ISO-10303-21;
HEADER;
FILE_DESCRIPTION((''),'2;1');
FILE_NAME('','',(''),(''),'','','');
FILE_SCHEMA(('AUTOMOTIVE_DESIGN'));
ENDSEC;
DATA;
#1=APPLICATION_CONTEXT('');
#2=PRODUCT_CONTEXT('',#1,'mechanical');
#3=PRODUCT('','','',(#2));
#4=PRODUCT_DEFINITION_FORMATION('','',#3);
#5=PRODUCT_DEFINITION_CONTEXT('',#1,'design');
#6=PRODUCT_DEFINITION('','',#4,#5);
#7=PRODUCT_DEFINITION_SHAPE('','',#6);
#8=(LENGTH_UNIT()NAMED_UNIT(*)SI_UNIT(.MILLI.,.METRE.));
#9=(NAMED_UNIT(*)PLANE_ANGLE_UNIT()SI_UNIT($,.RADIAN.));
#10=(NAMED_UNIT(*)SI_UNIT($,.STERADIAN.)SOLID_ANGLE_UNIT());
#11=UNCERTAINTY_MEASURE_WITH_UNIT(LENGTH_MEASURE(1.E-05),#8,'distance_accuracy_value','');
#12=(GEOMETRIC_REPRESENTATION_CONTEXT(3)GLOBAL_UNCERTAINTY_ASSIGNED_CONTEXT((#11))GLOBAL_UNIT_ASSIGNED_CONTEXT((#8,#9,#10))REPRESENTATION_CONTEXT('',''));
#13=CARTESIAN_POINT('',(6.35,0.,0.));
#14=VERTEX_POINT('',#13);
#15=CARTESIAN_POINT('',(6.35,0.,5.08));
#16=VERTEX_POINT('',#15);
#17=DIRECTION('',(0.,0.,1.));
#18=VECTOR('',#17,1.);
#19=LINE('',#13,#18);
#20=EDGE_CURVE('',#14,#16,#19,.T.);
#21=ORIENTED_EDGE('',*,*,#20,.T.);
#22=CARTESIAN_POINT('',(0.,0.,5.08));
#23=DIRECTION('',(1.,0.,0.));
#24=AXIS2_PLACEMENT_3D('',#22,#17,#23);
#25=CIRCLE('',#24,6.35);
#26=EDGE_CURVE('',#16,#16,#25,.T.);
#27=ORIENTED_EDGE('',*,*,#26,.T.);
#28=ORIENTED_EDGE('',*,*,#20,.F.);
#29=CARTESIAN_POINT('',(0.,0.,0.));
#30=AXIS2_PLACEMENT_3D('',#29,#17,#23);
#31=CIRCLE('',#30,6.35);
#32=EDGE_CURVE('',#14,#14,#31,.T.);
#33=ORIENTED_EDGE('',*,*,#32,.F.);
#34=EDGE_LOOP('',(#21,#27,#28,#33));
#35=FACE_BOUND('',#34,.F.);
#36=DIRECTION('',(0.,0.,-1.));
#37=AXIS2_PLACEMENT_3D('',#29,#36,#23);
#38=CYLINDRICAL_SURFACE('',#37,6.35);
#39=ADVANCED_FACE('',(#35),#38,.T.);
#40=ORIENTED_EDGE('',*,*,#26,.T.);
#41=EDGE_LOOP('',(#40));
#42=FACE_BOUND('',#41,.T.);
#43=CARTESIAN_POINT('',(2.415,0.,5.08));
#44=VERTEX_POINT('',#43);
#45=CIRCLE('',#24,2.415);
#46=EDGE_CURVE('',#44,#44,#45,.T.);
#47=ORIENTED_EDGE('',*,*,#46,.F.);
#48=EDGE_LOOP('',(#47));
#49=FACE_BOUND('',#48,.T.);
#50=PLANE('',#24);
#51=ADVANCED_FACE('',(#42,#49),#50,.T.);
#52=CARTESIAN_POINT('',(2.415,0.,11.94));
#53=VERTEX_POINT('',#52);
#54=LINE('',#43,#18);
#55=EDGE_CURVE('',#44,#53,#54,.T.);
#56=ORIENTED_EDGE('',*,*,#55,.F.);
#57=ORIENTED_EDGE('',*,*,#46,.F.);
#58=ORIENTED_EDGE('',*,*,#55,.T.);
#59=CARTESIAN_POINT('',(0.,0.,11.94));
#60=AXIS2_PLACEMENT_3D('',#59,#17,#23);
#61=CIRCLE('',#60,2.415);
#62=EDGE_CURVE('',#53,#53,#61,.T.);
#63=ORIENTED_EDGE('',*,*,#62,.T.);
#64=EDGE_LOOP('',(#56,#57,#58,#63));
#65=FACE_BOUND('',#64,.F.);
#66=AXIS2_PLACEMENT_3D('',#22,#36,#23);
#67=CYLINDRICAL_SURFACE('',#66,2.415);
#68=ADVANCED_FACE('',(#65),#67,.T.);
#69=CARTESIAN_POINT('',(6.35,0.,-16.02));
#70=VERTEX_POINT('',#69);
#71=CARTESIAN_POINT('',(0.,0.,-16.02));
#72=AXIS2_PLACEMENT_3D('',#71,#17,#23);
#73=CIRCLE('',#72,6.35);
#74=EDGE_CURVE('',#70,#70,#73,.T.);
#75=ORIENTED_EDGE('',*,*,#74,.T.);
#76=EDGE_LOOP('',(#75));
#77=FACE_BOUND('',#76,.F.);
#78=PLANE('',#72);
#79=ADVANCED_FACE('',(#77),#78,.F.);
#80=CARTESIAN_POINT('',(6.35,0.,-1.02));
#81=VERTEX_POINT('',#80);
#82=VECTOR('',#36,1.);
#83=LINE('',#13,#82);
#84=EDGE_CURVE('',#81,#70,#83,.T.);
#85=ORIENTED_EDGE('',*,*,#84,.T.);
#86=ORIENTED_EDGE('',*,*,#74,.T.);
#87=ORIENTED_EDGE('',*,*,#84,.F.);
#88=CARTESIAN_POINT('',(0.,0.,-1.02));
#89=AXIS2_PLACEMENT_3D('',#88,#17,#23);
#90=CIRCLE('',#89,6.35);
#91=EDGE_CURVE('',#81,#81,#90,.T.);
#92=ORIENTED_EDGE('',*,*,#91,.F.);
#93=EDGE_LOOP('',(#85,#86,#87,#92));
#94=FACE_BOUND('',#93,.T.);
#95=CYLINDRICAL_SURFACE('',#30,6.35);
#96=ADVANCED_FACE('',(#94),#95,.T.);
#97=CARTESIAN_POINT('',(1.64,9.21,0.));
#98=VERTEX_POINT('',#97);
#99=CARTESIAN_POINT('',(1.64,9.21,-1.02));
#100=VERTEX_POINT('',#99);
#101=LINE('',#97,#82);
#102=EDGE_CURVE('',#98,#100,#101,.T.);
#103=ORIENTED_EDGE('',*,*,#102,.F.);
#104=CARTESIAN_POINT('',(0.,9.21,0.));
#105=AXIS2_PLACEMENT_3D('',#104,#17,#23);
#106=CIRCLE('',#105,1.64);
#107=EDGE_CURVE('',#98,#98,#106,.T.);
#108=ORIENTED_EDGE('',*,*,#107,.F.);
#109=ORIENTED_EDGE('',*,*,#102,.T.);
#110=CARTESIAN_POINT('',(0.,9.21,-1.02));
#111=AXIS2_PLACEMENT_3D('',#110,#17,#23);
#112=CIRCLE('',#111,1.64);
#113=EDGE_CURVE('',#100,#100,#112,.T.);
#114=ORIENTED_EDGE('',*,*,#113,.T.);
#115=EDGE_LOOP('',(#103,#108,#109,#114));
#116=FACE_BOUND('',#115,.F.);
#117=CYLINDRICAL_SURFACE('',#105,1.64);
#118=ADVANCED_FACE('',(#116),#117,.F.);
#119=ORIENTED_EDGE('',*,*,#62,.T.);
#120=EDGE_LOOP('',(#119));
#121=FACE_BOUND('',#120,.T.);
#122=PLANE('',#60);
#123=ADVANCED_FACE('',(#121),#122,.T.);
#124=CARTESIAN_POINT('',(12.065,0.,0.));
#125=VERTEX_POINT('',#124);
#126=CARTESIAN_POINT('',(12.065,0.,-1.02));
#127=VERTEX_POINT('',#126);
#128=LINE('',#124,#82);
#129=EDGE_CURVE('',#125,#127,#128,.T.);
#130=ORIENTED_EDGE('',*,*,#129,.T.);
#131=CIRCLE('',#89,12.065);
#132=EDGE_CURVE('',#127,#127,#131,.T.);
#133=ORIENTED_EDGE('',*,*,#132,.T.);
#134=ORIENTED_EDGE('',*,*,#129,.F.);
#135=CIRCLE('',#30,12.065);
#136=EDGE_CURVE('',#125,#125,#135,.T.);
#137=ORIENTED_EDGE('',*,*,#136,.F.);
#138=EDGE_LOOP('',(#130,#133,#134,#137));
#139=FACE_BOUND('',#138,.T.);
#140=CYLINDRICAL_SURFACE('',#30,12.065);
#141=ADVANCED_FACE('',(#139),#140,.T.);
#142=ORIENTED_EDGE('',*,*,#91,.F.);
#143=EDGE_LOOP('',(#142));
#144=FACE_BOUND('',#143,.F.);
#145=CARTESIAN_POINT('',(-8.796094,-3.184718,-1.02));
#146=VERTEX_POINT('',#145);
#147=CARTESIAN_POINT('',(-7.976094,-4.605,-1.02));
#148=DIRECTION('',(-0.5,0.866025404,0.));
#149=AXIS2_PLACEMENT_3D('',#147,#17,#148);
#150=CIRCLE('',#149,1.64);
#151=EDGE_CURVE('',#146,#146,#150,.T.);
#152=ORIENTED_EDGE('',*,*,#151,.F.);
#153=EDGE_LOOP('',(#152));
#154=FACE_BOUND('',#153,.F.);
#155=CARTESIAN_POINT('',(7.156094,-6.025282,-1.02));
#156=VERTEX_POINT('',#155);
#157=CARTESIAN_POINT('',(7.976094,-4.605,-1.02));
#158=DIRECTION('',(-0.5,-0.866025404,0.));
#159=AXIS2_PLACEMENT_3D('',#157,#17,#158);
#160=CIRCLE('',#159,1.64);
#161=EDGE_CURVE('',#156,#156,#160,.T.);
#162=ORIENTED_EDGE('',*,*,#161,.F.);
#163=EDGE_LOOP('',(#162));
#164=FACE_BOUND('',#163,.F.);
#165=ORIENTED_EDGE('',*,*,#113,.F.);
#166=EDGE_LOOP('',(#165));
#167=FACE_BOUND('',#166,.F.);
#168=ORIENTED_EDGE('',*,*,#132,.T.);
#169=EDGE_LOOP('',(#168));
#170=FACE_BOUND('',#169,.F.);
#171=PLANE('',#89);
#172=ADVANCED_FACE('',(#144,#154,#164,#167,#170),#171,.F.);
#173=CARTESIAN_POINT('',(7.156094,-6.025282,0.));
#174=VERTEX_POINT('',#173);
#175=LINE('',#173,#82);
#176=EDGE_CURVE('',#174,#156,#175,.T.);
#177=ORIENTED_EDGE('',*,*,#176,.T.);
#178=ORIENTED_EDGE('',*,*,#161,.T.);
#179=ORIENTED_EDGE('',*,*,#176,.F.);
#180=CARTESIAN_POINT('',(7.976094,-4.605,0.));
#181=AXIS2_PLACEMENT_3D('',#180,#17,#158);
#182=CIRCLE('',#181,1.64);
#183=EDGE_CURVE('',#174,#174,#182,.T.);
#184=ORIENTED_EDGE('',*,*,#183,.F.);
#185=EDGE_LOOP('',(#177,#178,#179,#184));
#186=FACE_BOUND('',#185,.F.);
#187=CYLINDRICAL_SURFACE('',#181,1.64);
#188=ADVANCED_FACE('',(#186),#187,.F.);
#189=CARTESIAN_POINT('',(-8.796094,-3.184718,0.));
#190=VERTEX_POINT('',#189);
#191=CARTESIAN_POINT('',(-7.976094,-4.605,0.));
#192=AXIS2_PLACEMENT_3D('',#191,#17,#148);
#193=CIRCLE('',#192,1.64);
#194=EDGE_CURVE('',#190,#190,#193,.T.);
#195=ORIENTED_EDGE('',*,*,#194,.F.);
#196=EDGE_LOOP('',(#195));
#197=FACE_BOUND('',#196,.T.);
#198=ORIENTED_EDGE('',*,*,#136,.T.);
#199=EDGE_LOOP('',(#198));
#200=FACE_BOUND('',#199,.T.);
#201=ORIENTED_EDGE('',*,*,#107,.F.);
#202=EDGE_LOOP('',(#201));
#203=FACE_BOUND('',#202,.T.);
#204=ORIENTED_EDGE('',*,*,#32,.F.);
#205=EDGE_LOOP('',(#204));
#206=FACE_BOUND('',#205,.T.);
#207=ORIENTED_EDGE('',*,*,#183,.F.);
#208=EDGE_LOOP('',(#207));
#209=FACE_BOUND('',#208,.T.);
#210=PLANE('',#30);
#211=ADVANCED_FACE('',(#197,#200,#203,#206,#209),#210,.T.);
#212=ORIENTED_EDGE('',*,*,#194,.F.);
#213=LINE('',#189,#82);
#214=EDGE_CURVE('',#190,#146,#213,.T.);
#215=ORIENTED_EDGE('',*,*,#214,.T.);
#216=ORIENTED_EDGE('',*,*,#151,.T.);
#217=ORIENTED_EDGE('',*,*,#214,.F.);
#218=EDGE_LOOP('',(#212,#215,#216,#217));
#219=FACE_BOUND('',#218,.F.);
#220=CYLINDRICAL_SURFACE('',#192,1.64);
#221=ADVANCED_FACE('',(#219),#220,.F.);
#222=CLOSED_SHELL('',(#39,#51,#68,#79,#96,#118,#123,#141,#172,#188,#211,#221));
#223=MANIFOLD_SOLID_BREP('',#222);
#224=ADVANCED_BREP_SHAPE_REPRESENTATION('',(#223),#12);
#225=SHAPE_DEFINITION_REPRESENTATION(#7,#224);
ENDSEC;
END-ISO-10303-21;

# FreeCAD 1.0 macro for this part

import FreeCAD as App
import Part
import Sketcher

V = App.Vector
Q = App.Units.Quantity

doc = App.newDocument("Part")
body = doc.addObject("PartDesign::Body", "Body")

# Sketch on XY plane
sketch1 = doc.addObject("Sketcher::SketchObject", "Sketch")
body.addObject(sketch1)
sketch1.AttachmentSupport = (doc.XY_Plane, [""])
sketch1.MapMode = "FlatFace"
sketch1.addGeometry(Part.Circle(V(0, 0, 0), V(0, 0, 1), 6), False)
sketch1.addConstraint([
    Sketcher.Constraint("Coincident", 0, 3, -1, 1),
    Sketcher.Constraint("Diameter", 0, Q("0.5 in")),
])
pad1 = doc.addObject("PartDesign::Pad", "Pad")
body.addObject(pad1)
pad1.Profile = sketch1
pad1.Type = "TwoLengths"
pad1.Length = Q("0.2 in")
pad1.Length2 = Q("0.6307087 in")

# Sketch on XY plane
sketch2 = doc.addObject("Sketcher::SketchObject", "Sketch001")
body.addObject(sketch2)
sketch2.AttachmentSupport = (doc.XY_Plane, [""])
sketch2.MapMode = "FlatFace"
sketch2.addGeometry(Part.Circle(V(0, 0, 0), V(0, 0, 1), 12), False)
sketch2.addConstraint([
    Sketcher.Constraint("Coincident", 0, 3, -1, 1),
    Sketcher.Constraint("Diameter", 0, Q("0.95 in")),
])
pad2 = doc.addObject("PartDesign::Pad", "Pad001")
body.addObject(pad2)
pad2.Profile = sketch2
pad2.Length = 1.02
pad2.Reversed = True

# Sketch on XY plane
sketch3 = doc.addObject("Sketcher::SketchObject", "Sketch002")
body.addObject(sketch3)
sketch3.AttachmentSupport = (doc.XY_Plane, [""])
sketch3.MapMode = "FlatFace"
sketch3.AttachmentOffset = App.Placement(V(0, 0, 0.2 * 25.4), App.Rotation())
sketch3.addGeometry(Part.Circle(V(0, 0, 0), V(0, 0, 1), 2.4), False)
sketch3.addConstraint([
    Sketcher.Constraint("Coincident", 0, 3, -1, 1),
    Sketcher.Constraint("Diameter", 0, 4.83),
])
pad3 = doc.addObject("PartDesign::Pad", "Pad002")
body.addObject(pad3)
pad3.Profile = sketch3
pad3.Length = 6.86

# Sketch on XY plane
sketch4 = doc.addObject("Sketcher::SketchObject", "Sketch003")
body.addObject(sketch4)
sketch4.AttachmentSupport = (doc.XY_Plane, [""])
sketch4.MapMode = "FlatFace"
sketch4.addGeometry(Part.Circle(V(0, 9.2, 0), V(0, 0, 1), 1.6), False)
sketch4.addConstraint([
    Sketcher.Constraint("PointOnObject", 0, 3, -2),
    Sketcher.Constraint("Diameter", 0, 3.28),
    Sketcher.Constraint("DistanceY", -1, 1, 0, 3, Q("0.3626 in")),
])
pocket1 = doc.addObject("PartDesign::Pocket", "Pocket")
body.addObject(pocket1)
pocket1.Profile = sketch4
pocket1.Type = "ThroughAll"
doc.recompute()

polarpattern = doc.addObject("PartDesign::PolarPattern", "PolarPattern")
body.addObject(polarpattern)
polarpattern.Originals = [pocket1]
polarpattern.Axis = (doc.Z_Axis, [""])
polarpattern.Angle = 360
polarpattern.Occurrences = 3
body.Tip = polarpattern

doc.recompute()
